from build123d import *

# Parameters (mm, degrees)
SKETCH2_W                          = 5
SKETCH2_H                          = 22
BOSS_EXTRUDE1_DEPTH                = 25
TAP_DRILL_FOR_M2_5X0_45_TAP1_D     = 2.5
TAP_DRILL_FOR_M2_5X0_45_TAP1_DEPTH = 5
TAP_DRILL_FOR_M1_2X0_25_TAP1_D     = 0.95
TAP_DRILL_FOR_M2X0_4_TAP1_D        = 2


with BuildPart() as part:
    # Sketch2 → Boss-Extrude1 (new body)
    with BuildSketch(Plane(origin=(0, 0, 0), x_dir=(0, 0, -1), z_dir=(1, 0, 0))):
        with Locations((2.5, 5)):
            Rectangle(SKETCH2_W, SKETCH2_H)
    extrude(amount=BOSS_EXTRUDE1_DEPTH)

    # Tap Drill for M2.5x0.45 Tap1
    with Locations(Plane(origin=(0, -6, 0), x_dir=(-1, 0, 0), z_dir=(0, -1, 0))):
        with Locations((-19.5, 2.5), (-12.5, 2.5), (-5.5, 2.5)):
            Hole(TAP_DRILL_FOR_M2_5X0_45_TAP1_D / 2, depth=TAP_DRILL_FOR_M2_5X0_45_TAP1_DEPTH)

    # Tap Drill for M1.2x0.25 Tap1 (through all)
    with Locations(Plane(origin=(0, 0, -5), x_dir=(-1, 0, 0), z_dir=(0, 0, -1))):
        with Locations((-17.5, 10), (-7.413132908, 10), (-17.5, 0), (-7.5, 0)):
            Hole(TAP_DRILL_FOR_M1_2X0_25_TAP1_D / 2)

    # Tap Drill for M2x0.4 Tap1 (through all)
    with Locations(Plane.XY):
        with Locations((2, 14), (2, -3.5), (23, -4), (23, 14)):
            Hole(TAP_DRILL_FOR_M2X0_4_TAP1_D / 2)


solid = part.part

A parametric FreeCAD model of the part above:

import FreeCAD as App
import Part
import Sketcher
from FreeCAD import Vector

doc = App.newDocument("Part")
body = doc.addObject("PartDesign::Body", "Body")

# Sketch on YZ plane
sketch1 = doc.addObject("Sketcher::SketchObject", "Sketch")
body.addObject(sketch1)
sketch1.AttachmentSupport = (doc.YZ_Plane, [""])
sketch1.MapMode = "FlatFace"
sketch1.addGeometry([
    Part.LineSegment(Vector(16, 0, 0), Vector(-6, 0, 0)),
    Part.LineSegment(Vector(-6, 0, 0), Vector(-6, -5, 0)),
    Part.LineSegment(Vector(-6, -5, 0), Vector(16, -5, 0)),
    Part.LineSegment(Vector(16, -5, 0), Vector(16, 0, 0)),
], False)
sketch1.addConstraint([
    Sketcher.Constraint("Coincident", 0, 2, 1, 1),
    Sketcher.Constraint("Coincident", 1, 2, 2, 1),
    Sketcher.Constraint("Coincident", 2, 2, 3, 1),
    Sketcher.Constraint("Coincident", 3, 2, 0, 1),
    Sketcher.Constraint("Horizontal", 0),
    Sketcher.Constraint("Vertical", 1),
    Sketcher.Constraint("Horizontal", 2),
    Sketcher.Constraint("Vertical", 3),
    Sketcher.Constraint("PointOnObject", 0, 2, -1),
    Sketcher.Constraint("DistanceX", 0, 2, 0, 1, 22.0),
    Sketcher.Constraint("DistanceY", 1, 2, 1, 1, 5.0),
    Sketcher.Constraint("DistanceX", 0, 2, -1, 1, 6.0),
])
pad1 = doc.addObject("PartDesign::Pad", "Pad")
body.addObject(pad1)
pad1.Profile = sketch1
pad1.Length = 25

# Sketch on XZ plane
sketch2 = doc.addObject("Sketcher::SketchObject", "Sketch001")
body.addObject(sketch2)
sketch2.AttachmentSupport = (doc.XZ_Plane, [""])
sketch2.MapMode = "FlatFace"
sketch2.AttachmentOffset = App.Placement(Vector(0, 0, 6), App.Rotation())
sketch2.addGeometry([
    Part.Circle(Vector(19.5, -2.5, 0), Vector(0, 0, 1), 1.25),
    Part.Circle(Vector(12.5, -2.5, 0), Vector(0, 0, 1), 1.25),
    Part.Circle(Vector(5.5, -2.5, 0), Vector(0, 0, 1), 1.25),
], False)
sketch2.addConstraint([
    Sketcher.Constraint("Equal", 0, 1),
    Sketcher.Constraint("Equal", 1, 2),
    Sketcher.Constraint("Horizontal", 0, 3, 1, 3),
    Sketcher.Constraint("Horizontal", 1, 3, 2, 3),
    Sketcher.Constraint("Diameter", 0, 2.5),
    Sketcher.Constraint("DistanceX", 1, 3, 0, 3, 7.0),
    Sketcher.Constraint("DistanceX", 2, 3, 1, 3, 7.0),
    Sketcher.Constraint("DistanceX", -1, 1, 0, 3, 19.5),
    Sketcher.Constraint("DistanceY", 0, 3, -1, 1, 2.5),
])
doc.recompute()
hole = doc.addObject("PartDesign::Hole", "Hole")
body.addObject(hole)
hole.Profile = sketch2
hole.ThreadType = "None"
hole.Diameter = 2.5
hole.DepthType = "Dimension"
hole.Depth = 5
hole.DrillPoint = "Flat"

# Sketch on XY plane
sketch3 = doc.addObject("Sketcher::SketchObject", "Sketch002")
body.addObject(sketch3)
sketch3.AttachmentSupport = (doc.XY_Plane, [""])
sketch3.MapMode = "FlatFace"
sketch3.AttachmentOffset = App.Placement(Vector(0, 0, -5), App.Rotation())
sketch3.addGeometry([
    Part.Circle(Vector(17.5, 10, 0), Vector(0, 0, 1), 0.475),
    Part.Circle(Vector(7.413133, 10, 0), Vector(0, 0, 1), 0.475),
    Part.Circle(Vector(17.5, 0, 0), Vector(0, 0, 1), 0.475),
    Part.Circle(Vector(7.5, 0, 0), Vector(0, 0, 1), 0.475),
], False)
sketch3.addConstraint([
    Sketcher.Constraint("Equal", 0, 1),
    Sketcher.Constraint("Equal", 1, 2),
    Sketcher.Constraint("Equal", 2, 3),
    Sketcher.Constraint("PointOnObject", 2, 3, -1),
    Sketcher.Constraint("PointOnObject", 3, 3, -1),
    Sketcher.Constraint("Horizontal", 0, 3, 1, 3),
    Sketcher.Constraint("Vertical", 0, 3, 2, 3),
    Sketcher.Constraint("Diameter", 0, 0.95),
    Sketcher.Constraint("DistanceY", -1, 1, 0, 3, 10.0),
    Sketcher.Constraint("DistanceX", 3, 3, 2, 3, 10.0),
    Sketcher.Constraint("DistanceX", -1, 1, 0, 3, 17.5),
    Sketcher.Constraint("DistanceX", -1, 1, 1, 3, 7.413133),
])
doc.recompute()
hole2 = doc.addObject("PartDesign::Hole", "Hole001")
body.addObject(hole2)
hole2.Profile = sketch3
hole2.ThreadType = "None"
hole2.Diameter = 0.95
hole2.DepthType = "ThroughAll"
hole2.Reversed = True

# Sketch on XY plane
sketch4 = doc.addObject("Sketcher::SketchObject", "Sketch003")
body.addObject(sketch4)
sketch4.AttachmentSupport = (doc.XY_Plane, [""])
sketch4.MapMode = "FlatFace"
sketch4.addGeometry([
    Part.Circle(Vector(2, 14, 0), Vector(0, 0, 1), 1),
    Part.Circle(Vector(2, -3.5, 0), Vector(0, 0, 1), 1),
    Part.Circle(Vector(23, -4, 0), Vector(0, 0, 1), 1),
    Part.Circle(Vector(23, 14, 0), Vector(0, 0, 1), 1),
], False)
sketch4.addConstraint([
    Sketcher.Constraint("Equal", 0, 1),
    Sketcher.Constraint("Equal", 1, 2),
    Sketcher.Constraint("Equal", 2, 3),
    Sketcher.Constraint("Horizontal", 0, 3, 3, 3),
    Sketcher.Constraint("Vertical", 0, 3, 1, 3),
    Sketcher.Constraint("Vertical", 2, 3, 3, 3),
    Sketcher.Constraint("Diameter", 0, 2.0),
    Sketcher.Constraint("DistanceX", -1, 1, 0, 3, 2.0),
    Sketcher.Constraint("DistanceY", -1, 1, 0, 3, 14.0),
    Sketcher.Constraint("DistanceX", -1, 1, 2, 3, 23.0),
    Sketcher.Constraint("DistanceY", 2, 3, -1, 1, 4.0),
    Sketcher.Constraint("DistanceY", 1, 3, -1, 1, 3.5),
])
doc.recompute()
hole3 = doc.addObject("PartDesign::Hole", "Hole002")
body.addObject(hole3)
hole3.Profile = sketch4
hole3.ThreadType = "None"
hole3.Diameter = 2
hole3.DepthType = "ThroughAll"

doc.recompute()
